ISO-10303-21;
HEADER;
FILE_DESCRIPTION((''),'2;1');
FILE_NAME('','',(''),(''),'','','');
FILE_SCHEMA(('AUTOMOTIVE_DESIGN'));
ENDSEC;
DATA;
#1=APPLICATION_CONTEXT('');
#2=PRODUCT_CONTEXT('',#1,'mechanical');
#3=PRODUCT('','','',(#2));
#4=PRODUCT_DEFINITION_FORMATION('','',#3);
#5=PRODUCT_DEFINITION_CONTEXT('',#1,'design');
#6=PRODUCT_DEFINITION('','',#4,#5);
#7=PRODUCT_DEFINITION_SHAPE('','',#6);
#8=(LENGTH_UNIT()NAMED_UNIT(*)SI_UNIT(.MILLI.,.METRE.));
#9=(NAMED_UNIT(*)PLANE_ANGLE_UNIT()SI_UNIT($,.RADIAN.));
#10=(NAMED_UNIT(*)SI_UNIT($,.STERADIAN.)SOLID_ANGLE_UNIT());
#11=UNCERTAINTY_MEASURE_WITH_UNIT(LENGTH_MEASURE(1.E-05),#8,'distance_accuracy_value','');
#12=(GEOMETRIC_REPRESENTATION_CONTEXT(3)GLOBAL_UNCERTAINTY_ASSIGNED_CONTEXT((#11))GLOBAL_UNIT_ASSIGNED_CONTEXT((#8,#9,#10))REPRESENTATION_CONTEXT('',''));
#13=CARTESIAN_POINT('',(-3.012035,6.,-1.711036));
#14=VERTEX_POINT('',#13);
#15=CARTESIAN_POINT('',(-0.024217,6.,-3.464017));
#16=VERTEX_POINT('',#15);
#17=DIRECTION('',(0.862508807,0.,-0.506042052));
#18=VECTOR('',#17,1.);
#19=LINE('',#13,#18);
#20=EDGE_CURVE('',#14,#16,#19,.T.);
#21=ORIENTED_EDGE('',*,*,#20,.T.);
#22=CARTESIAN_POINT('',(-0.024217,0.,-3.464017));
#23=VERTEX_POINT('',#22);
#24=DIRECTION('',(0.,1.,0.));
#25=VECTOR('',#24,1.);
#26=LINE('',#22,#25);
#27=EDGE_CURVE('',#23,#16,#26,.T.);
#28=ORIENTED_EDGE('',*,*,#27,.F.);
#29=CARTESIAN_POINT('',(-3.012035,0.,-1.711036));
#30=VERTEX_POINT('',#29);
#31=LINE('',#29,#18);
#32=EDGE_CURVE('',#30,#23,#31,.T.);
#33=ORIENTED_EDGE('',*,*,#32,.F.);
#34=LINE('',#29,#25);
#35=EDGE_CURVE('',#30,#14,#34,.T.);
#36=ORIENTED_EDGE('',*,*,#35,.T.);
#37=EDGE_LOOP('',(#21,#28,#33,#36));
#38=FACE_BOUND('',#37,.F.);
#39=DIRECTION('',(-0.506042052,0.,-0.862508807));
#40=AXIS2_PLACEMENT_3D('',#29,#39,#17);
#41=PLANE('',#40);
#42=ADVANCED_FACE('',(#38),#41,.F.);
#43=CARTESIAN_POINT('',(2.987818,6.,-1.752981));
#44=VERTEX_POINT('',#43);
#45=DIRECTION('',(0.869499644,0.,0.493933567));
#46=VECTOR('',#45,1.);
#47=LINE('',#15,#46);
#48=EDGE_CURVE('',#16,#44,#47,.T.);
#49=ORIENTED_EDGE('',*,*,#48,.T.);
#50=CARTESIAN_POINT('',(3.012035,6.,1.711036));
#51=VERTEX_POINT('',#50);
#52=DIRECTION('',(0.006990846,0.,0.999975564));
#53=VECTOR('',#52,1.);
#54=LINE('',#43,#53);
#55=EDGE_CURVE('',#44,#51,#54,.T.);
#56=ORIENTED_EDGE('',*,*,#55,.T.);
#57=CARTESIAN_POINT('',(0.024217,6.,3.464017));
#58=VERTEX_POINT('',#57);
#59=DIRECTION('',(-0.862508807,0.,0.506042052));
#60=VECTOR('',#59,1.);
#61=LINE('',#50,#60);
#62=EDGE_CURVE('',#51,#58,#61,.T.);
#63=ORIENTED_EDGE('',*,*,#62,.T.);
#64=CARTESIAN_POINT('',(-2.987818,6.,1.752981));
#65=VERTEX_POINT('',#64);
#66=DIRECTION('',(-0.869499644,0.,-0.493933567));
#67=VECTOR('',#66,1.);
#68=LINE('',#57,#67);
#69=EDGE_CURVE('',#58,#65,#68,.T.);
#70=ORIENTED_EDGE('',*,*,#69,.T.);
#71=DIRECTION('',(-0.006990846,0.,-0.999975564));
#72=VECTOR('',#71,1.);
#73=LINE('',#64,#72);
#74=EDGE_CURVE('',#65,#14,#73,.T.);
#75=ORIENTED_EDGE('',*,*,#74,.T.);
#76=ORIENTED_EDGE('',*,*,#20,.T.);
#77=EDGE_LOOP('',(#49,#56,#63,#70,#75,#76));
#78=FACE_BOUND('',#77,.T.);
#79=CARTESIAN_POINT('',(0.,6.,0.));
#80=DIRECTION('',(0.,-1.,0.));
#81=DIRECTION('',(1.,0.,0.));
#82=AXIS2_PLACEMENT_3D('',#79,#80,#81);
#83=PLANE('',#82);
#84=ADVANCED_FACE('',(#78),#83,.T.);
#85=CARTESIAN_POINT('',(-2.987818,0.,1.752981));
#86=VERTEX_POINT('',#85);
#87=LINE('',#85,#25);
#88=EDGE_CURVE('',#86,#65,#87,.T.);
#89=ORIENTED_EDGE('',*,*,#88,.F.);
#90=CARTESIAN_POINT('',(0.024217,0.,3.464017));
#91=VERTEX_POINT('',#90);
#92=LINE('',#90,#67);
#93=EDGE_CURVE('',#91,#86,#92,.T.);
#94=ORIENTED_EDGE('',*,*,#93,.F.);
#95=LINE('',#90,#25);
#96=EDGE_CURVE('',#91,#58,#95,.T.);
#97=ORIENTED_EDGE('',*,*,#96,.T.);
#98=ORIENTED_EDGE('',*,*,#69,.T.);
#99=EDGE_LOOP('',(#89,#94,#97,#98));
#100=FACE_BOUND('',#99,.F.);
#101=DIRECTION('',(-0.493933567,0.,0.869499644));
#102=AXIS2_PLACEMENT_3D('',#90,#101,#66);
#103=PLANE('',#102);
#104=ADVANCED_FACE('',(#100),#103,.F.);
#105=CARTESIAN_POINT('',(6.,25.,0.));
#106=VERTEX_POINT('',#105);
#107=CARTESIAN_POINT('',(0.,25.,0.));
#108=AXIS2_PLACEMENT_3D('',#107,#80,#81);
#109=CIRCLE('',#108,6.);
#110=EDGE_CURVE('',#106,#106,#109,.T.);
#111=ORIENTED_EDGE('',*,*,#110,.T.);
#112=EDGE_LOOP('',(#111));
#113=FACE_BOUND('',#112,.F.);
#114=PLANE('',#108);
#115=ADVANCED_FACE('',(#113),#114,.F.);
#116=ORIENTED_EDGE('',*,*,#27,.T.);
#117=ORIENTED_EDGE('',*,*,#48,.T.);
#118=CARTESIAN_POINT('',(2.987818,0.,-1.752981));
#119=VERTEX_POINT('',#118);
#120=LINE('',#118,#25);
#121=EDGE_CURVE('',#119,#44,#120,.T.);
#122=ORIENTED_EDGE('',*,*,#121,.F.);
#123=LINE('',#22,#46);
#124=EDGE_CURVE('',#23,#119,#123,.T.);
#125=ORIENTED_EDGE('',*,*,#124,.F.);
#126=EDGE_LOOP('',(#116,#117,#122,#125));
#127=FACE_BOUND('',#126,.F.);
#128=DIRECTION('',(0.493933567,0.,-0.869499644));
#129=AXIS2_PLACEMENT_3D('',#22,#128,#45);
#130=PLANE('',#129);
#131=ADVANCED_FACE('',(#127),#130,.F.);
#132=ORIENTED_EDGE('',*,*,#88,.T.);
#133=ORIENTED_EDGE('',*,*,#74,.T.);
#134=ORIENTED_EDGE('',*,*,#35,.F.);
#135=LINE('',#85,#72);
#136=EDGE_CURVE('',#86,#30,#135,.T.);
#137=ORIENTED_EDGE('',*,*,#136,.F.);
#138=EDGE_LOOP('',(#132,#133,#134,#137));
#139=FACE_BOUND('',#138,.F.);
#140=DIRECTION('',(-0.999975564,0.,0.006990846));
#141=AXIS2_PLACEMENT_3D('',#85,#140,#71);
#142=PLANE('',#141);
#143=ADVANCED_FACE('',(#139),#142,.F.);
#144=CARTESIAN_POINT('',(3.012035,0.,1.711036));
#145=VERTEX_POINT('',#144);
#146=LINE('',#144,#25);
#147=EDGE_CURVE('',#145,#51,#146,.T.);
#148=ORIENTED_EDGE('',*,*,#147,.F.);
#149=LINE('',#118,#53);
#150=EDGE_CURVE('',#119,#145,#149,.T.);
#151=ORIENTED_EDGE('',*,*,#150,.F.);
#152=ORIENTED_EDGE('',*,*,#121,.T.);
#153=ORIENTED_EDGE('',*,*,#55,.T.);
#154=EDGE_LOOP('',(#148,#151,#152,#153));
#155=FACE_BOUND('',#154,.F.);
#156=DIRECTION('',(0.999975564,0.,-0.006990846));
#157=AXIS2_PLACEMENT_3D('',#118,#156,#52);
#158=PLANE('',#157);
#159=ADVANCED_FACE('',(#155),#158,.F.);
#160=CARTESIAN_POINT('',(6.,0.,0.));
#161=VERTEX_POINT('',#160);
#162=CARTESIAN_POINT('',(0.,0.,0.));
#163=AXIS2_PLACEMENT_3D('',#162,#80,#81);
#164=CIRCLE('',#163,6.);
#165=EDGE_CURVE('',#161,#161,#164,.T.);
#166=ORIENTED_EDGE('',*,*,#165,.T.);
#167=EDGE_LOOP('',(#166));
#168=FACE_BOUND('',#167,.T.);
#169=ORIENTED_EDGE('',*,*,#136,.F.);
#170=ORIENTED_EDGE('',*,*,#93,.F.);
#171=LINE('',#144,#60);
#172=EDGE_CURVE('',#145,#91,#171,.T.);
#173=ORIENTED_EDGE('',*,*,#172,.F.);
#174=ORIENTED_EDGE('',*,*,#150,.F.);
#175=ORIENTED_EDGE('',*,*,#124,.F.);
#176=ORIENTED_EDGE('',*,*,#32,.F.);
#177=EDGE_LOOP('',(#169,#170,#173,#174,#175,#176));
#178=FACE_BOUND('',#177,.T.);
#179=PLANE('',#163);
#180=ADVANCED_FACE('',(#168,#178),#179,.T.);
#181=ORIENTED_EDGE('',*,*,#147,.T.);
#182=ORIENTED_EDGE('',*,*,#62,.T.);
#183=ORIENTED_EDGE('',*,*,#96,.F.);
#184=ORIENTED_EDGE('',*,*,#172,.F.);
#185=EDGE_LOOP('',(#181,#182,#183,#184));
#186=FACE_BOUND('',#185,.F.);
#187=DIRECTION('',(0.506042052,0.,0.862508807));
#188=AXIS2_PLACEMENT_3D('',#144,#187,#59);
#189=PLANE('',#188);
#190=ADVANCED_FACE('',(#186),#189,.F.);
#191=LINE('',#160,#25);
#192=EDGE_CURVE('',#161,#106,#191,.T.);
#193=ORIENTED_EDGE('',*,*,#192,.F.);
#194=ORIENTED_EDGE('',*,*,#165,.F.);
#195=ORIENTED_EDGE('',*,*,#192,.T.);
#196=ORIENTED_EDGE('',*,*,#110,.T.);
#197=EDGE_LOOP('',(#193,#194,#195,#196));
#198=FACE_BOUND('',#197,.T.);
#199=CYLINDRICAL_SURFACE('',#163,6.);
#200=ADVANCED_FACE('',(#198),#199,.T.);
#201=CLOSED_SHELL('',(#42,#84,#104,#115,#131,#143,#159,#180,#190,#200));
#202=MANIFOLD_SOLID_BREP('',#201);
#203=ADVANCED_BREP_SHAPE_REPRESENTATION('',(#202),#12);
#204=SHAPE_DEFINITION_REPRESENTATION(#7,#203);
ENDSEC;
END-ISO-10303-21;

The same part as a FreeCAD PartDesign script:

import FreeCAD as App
import Part
import Sketcher
Q = App.Units.Quantity


def add_polygon(sketch, points):
    """Adds a closed chain of lines whose ends are joined by coincident constraints."""
    first, n = sketch.GeometryCount, len(points)
    for a, b in zip(points, points[1:] + points[:1]):
        sketch.addGeometry(Part.LineSegment(App.Vector(*a, 0), App.Vector(*b, 0)), False)
    for i in range(n):
        sketch.addConstraint(Sketcher.Constraint("Coincident", first + i, 2, first + (i + 1) % n, 1))

doc = App.newDocument("Part")
params = doc.addObject("Spreadsheet::Sheet", "Params")
for row, (alias, value) in enumerate([
    ("sketch1_diameter", "12 mm"),
    ("pad1_length", "25 mm"),
    ("pocket1_length", "6 mm"),
], start=1):
    params.set(f"A{row}", alias)
    params.set(f"B{row}", "=" + value)
    params.setAlias(f"B{row}", alias)

body = doc.addObject("PartDesign::Body", "Body")

# Sketch on XZ plane
sketch1 = body.newObject("Sketcher::SketchObject", "Sketch")
sketch1.AttachmentSupport = (doc.getObject("XZ_Plane"), [""])
sketch1.MapMode = "FlatFace"
sketch1.addGeometry(Part.Circle(App.Vector(0, 0, 0), App.Vector(0, 0, 1), 6), False)
sketch1.addConstraint(Sketcher.Constraint("Coincident", 0, 3, -1, 1))
sketch1.addConstraint(Sketcher.Constraint("Diameter", 0, Q("12 mm")))
sketch1.setExpression("Constraints[1]", "Params.sketch1_diameter")
pad1 = body.newObject("PartDesign::Pad", "Pad")
pad1.Profile = sketch1
pad1.setExpression("Length", "Params.pad1_length")
pad1.Reversed = True

# Sketch on XZ plane
sketch2 = body.newObject("Sketcher::SketchObject", "Sketch001")
sketch2.AttachmentSupport = (doc.getObject("XZ_Plane"), [""])
sketch2.MapMode = "FlatFace"
add_polygon(sketch2, [(0, 3.5), (-3, 1.8), (-3, -1.7), (0, -3.5), (3, -1.8), (3, 1.7)])  # lines 0-5
sketch2.addConstraint(Sketcher.Constraint("Symmetric", 0, 2, 3, 2, -1, 1))
sketch2.addConstraint(Sketcher.Constraint("Symmetric", 1, 2, 4, 2, -1, 1))
sketch2.addConstraint(Sketcher.Constraint("Symmetric", 2, 2, 5, 2, -1, 1))
sketch2.addConstraint(Sketcher.Constraint("Equal", 0, 1))
sketch2.addConstraint(Sketcher.Constraint("Equal", 1, 2))
sketch2.addConstraint(Sketcher.Constraint("DistanceY", 2, 2, 0, 2, Q("5.216998 mm")))
sketch2.addConstraint(Sketcher.Constraint("Distance", 0, Q("3.464101 mm")))
sketch2.addConstraint(Sketcher.Constraint("DistanceX", 0, 2, 2, 2, Q("2.963601 mm")))
sketch2.addConstraint(Sketcher.Constraint("DistanceY", -1, 1, 0, 2, Q("1.752981 mm")))
pocket1 = body.newObject("PartDesign::Pocket", "Pocket")
pocket1.Profile = sketch2
pocket1.setExpression("Length", "Params.pocket1_length")

doc.recompute()
